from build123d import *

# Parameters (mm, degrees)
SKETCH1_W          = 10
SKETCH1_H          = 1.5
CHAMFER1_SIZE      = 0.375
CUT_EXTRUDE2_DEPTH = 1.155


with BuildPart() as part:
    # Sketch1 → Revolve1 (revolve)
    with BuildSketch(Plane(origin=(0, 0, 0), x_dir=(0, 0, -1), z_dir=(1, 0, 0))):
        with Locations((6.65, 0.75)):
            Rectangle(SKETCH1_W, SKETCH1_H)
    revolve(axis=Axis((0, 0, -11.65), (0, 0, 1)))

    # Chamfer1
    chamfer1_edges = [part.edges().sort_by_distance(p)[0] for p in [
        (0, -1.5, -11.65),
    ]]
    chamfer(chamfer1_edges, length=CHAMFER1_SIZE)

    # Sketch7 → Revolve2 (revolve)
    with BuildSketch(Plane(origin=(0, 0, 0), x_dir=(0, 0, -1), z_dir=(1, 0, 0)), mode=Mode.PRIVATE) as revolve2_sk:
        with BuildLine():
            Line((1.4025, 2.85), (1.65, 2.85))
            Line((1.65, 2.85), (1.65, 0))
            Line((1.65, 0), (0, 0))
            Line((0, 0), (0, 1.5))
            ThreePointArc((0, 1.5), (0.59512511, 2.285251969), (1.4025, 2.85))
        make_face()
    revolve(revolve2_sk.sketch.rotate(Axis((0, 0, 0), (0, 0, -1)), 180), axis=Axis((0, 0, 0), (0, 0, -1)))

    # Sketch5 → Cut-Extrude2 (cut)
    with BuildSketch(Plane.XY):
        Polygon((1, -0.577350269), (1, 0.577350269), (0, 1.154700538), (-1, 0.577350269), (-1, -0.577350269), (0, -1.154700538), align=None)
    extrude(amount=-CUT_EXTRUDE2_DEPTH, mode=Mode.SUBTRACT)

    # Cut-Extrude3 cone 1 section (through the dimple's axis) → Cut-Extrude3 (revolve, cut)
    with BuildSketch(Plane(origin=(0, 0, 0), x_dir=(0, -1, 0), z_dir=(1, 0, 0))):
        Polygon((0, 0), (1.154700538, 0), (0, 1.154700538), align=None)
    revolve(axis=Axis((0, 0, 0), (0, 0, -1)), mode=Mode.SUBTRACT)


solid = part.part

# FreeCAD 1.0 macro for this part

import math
import FreeCAD as App
import Part
import Sketcher
Q = App.Units.Quantity


def edges_at(feature, points):
    """Names of the edges that pass closest to the given points."""
    edges = feature.Shape.Edges
    near = lambda p: min(range(len(edges)), key=lambda i: edges[i].distToShape(Part.Vertex(*p))[0])
    return sorted({f"Edge{near(p) + 1}" for p in points})

doc = App.newDocument("Part")
params = doc.addObject("Spreadsheet::Sheet", "Params")
for row, (alias, value) in enumerate([
    ("sketch1_height", "10 mm"),
    ("sketch1_width", "1.5 mm"),
    ("revolution_angle", "360 deg"),
    ("chamfer_size", "0.375 mm"),
    ("sketch2_width", "1.5 mm"),
    ("sketch2_width2", "2.85 mm"),
    ("sketch2_height", "1.65 mm"),
    ("revolution2_angle", "360 deg"),
    ("pocket1_length", "1.155 mm"),
    ("groove_angle", "360 deg"),
], start=1):
    params.set(f"A{row}", alias)
    params.set(f"B{row}", "=" + value)
    params.setAlias(f"B{row}", alias)

body = doc.addObject("PartDesign::Body", "Body")

sketch1 = body.newObject("Sketcher::SketchObject", "Sketch")
sketch1.AttachmentSupport = (doc.getObject("YZ_Plane"), [""])
sketch1.MapMode = "FlatFace"
sketch1.addGeometry(Part.LineSegment(App.Vector(1.5, -1.6, 0), App.Vector(0, -1.6, 0)), False)
sketch1.addGeometry(Part.LineSegment(App.Vector(0, -1.6, 0), App.Vector(0, -11.7, 0)), False)
sketch1.addGeometry(Part.LineSegment(App.Vector(0, -11.7, 0), App.Vector(1.5, -11.7, 0)), False)
sketch1.addGeometry(Part.LineSegment(App.Vector(1.5, -11.7, 0), App.Vector(1.5, -1.6, 0)), False)
sketch1.addConstraint(Sketcher.Constraint("Coincident", 0, 2, 1, 1))
sketch1.addConstraint(Sketcher.Constraint("Coincident", 1, 2, 2, 1))
sketch1.addConstraint(Sketcher.Constraint("Coincident", 2, 2, 3, 1))
sketch1.addConstraint(Sketcher.Constraint("Coincident", 3, 2, 0, 1))
sketch1.addConstraint(Sketcher.Constraint("Horizontal", 0))
sketch1.addConstraint(Sketcher.Constraint("Vertical", 1))
sketch1.addConstraint(Sketcher.Constraint("Horizontal", 2))
sketch1.addConstraint(Sketcher.Constraint("Vertical", 3))
sketch1.addConstraint(Sketcher.Constraint("PointOnObject", 0, 2, -2))
sketch1.addConstraint(Sketcher.Constraint("DistanceY", 1, 2, 1, 1, 10.0))
sketch1.addConstraint(Sketcher.Constraint("DistanceX", 0, 2, 0, 1, 1.5))
sketch1.addConstraint(Sketcher.Constraint("DistanceY", 0, 2, -1, 1, 1.65))
sketch1.setExpression("Constraints[9]", "Params.sketch1_height")
sketch1.setExpression("Constraints[10]", "Params.sketch1_width")
revolution = body.newObject("PartDesign::Revolution", "Revolution")
revolution.Profile = sketch1
revolution.ReferenceAxis = (sketch1, ["V_Axis"])
revolution.setExpression("Angle", "Params.revolution_angle")
doc.recompute()

chamfer = body.newObject("PartDesign::Chamfer", "Chamfer")
chamfer.Base = (revolution, edges_at(revolution, [(0, -1.5, -11.65)]))
chamfer.setExpression("Size", "Params.chamfer_size")

sketch2 = body.newObject("Sketcher::SketchObject", "Sketch001")
sketch2.AttachmentSupport = (doc.getObject("YZ_Plane"), [""])
sketch2.MapMode = "FlatFace"
sketch2.addGeometry(Part.LineSegment(App.Vector(2.85, -1.65, 0), App.Vector(2.85, -1.4, 0)), False)
sketch2.addGeometry(Part.ArcOfCircle(Part.Circle(App.Vector(0, -2.79, 0), App.Vector(0, 0, 1), 3.17), math.radians(26), math.radians(62)), False)
sketch2.addGeometry(Part.LineSegment(App.Vector(1.5, 0, 0), App.Vector(0, 0, 0)), False)
sketch2.addGeometry(Part.LineSegment(App.Vector(0, 0, 0), App.Vector(0, -1.65, 0)), False)
sketch2.addGeometry(Part.LineSegment(App.Vector(0, -1.65, 0), App.Vector(2.85, -1.65, 0)), False)
sketch2.addConstraint(Sketcher.Constraint("Coincident", 0, 2, 1, 1))
sketch2.addConstraint(Sketcher.Constraint("Coincident", 1, 2, 2, 1))
sketch2.addConstraint(Sketcher.Constraint("Coincident", 2, 2, 3, 1))
sketch2.addConstraint(Sketcher.Constraint("Coincident", 3, 2, 4, 1))
sketch2.addConstraint(Sketcher.Constraint("Coincident", 4, 2, 0, 1))
sketch2.addConstraint(Sketcher.Constraint("Vertical", 0))
sketch2.addConstraint(Sketcher.Constraint("Horizontal", 2))
sketch2.addConstraint(Sketcher.Constraint("Vertical", 3))
sketch2.addConstraint(Sketcher.Constraint("Horizontal", 4))
sketch2.addConstraint(Sketcher.Constraint("Coincident", 2, 2, -1, 1))
sketch2.addConstraint(Sketcher.Constraint("PointOnObject", 1, 3, -2))
sketch2.addConstraint(Sketcher.Constraint("DistanceX", 2, 2, 2, 1, 1.5))
sketch2.addConstraint(Sketcher.Constraint("DistanceX", 4, 1, 4, 2, 2.85))
sketch2.addConstraint(Sketcher.Constraint("DistanceY", 3, 2, 3, 1, 1.65))
sketch2.addConstraint(Sketcher.Constraint("DistanceY", 0, 1, 0, 2, 0.2475))
sketch2.setExpression("Constraints[11]", "Params.sketch2_width")
sketch2.setExpression("Constraints[12]", "Params.sketch2_width2")
sketch2.setExpression("Constraints[13]", "Params.sketch2_height")
revolution2 = body.newObject("PartDesign::Revolution", "Revolution001")
revolution2.Profile = sketch2
revolution2.ReferenceAxis = (sketch2, ["V_Axis"])
revolution2.setExpression("Angle", "Params.revolution2_angle")

sketch3 = body.newObject("Sketcher::SketchObject", "Sketch002")
sketch3.AttachmentSupport = (doc.getObject("XY_Plane"), [""])
sketch3.MapMode = "FlatFace"
sketch3.addGeometry(Part.LineSegment(App.Vector(1, -0.6, 0), App.Vector(1, 0.6, 0)), False)
sketch3.addGeometry(Part.LineSegment(App.Vector(1, 0.6, 0), App.Vector(0, 1.2, 0)), False)
sketch3.addGeometry(Part.LineSegment(App.Vector(0, 1.2, 0), App.Vector(-1, 0.6, 0)), False)
sketch3.addGeometry(Part.LineSegment(App.Vector(-1, 0.6, 0), App.Vector(-1, -0.6, 0)), False)
sketch3.addGeometry(Part.LineSegment(App.Vector(-1, -0.6, 0), App.Vector(0, -1.2, 0)), False)
sketch3.addGeometry(Part.LineSegment(App.Vector(0, -1.2, 0), App.Vector(1, -0.6, 0)), False)
sketch3.addConstraint(Sketcher.Constraint("Coincident", 0, 2, 1, 1))
sketch3.addConstraint(Sketcher.Constraint("Coincident", 1, 2, 2, 1))
sketch3.addConstraint(Sketcher.Constraint("Coincident", 2, 2, 3, 1))
sketch3.addConstraint(Sketcher.Constraint("Coincident", 3, 2, 4, 1))
sketch3.addConstraint(Sketcher.Constraint("Coincident", 4, 2, 5, 1))
sketch3.addConstraint(Sketcher.Constraint("Coincident", 5, 2, 0, 1))
sketch3.addConstraint(Sketcher.Constraint("Vertical", 0))
sketch3.addConstraint(Sketcher.Constraint("Vertical", 3))
sketch3.addConstraint(Sketcher.Constraint("Symmetric", 0, 2, 3, 2, -1, 1))
sketch3.addConstraint(Sketcher.Constraint("Symmetric", 1, 2, 4, 2, -1, 1))
sketch3.addConstraint(Sketcher.Constraint("PointOnObject", 1, 2, -2))
sketch3.addConstraint(Sketcher.Constraint("Parallel", 2, 5))
sketch3.addConstraint(Sketcher.Constraint("Horizontal", 0, 2, 2, 2))
sketch3.addConstraint(Sketcher.Constraint("Angle", 1, Q("150 deg")))
sketch3.addConstraint(Sketcher.Constraint("DistanceX", -1, 1, 0, 2, 1.0))
sketch3.addConstraint(Sketcher.Constraint("DistanceY", 0, 1, 0, 2, 1.154701))
pocket1 = body.newObject("PartDesign::Pocket", "Pocket")
pocket1.Profile = sketch3
pocket1.setExpression("Length", "Params.pocket1_length")

sketch4 = body.newObject("Sketcher::SketchObject", "Sketch003")
sketch4.AttachmentSupport = (doc.getObject("YZ_Plane"), [""])
sketch4.MapMode = "FlatFace"
sketch4.addGeometry(Part.LineSegment(App.Vector(0, 0, 0), App.Vector(-1.2, 0, 0)), False)
sketch4.addGeometry(Part.LineSegment(App.Vector(-1.2, 0, 0), App.Vector(0, -1.2, 0)), False)
sketch4.addGeometry(Part.LineSegment(App.Vector(0, -1.2, 0), App.Vector(0, 0, 0)), False)
sketch4.addConstraint(Sketcher.Constraint("Coincident", 0, 2, 1, 1))
sketch4.addConstraint(Sketcher.Constraint("Coincident", 1, 2, 2, 1))
sketch4.addConstraint(Sketcher.Constraint("Coincident", 2, 2, 0, 1))
sketch4.addConstraint(Sketcher.Constraint("Horizontal", 0))
sketch4.addConstraint(Sketcher.Constraint("Vertical", 2))
sketch4.addConstraint(Sketcher.Constraint("Coincident", 2, 2, -1, 1))
sketch4.addConstraint(Sketcher.Constraint("Equal", 0, 2))
sketch4.addConstraint(Sketcher.Constraint("DistanceX", 0, 2, 0, 1, 1.154701))
groove = body.newObject("PartDesign::Groove", "Groove")
groove.Profile = sketch4
groove.ReferenceAxis = (sketch4, ["V_Axis"])
groove.setExpression("Angle", "Params.groove_angle")

doc.recompute()
